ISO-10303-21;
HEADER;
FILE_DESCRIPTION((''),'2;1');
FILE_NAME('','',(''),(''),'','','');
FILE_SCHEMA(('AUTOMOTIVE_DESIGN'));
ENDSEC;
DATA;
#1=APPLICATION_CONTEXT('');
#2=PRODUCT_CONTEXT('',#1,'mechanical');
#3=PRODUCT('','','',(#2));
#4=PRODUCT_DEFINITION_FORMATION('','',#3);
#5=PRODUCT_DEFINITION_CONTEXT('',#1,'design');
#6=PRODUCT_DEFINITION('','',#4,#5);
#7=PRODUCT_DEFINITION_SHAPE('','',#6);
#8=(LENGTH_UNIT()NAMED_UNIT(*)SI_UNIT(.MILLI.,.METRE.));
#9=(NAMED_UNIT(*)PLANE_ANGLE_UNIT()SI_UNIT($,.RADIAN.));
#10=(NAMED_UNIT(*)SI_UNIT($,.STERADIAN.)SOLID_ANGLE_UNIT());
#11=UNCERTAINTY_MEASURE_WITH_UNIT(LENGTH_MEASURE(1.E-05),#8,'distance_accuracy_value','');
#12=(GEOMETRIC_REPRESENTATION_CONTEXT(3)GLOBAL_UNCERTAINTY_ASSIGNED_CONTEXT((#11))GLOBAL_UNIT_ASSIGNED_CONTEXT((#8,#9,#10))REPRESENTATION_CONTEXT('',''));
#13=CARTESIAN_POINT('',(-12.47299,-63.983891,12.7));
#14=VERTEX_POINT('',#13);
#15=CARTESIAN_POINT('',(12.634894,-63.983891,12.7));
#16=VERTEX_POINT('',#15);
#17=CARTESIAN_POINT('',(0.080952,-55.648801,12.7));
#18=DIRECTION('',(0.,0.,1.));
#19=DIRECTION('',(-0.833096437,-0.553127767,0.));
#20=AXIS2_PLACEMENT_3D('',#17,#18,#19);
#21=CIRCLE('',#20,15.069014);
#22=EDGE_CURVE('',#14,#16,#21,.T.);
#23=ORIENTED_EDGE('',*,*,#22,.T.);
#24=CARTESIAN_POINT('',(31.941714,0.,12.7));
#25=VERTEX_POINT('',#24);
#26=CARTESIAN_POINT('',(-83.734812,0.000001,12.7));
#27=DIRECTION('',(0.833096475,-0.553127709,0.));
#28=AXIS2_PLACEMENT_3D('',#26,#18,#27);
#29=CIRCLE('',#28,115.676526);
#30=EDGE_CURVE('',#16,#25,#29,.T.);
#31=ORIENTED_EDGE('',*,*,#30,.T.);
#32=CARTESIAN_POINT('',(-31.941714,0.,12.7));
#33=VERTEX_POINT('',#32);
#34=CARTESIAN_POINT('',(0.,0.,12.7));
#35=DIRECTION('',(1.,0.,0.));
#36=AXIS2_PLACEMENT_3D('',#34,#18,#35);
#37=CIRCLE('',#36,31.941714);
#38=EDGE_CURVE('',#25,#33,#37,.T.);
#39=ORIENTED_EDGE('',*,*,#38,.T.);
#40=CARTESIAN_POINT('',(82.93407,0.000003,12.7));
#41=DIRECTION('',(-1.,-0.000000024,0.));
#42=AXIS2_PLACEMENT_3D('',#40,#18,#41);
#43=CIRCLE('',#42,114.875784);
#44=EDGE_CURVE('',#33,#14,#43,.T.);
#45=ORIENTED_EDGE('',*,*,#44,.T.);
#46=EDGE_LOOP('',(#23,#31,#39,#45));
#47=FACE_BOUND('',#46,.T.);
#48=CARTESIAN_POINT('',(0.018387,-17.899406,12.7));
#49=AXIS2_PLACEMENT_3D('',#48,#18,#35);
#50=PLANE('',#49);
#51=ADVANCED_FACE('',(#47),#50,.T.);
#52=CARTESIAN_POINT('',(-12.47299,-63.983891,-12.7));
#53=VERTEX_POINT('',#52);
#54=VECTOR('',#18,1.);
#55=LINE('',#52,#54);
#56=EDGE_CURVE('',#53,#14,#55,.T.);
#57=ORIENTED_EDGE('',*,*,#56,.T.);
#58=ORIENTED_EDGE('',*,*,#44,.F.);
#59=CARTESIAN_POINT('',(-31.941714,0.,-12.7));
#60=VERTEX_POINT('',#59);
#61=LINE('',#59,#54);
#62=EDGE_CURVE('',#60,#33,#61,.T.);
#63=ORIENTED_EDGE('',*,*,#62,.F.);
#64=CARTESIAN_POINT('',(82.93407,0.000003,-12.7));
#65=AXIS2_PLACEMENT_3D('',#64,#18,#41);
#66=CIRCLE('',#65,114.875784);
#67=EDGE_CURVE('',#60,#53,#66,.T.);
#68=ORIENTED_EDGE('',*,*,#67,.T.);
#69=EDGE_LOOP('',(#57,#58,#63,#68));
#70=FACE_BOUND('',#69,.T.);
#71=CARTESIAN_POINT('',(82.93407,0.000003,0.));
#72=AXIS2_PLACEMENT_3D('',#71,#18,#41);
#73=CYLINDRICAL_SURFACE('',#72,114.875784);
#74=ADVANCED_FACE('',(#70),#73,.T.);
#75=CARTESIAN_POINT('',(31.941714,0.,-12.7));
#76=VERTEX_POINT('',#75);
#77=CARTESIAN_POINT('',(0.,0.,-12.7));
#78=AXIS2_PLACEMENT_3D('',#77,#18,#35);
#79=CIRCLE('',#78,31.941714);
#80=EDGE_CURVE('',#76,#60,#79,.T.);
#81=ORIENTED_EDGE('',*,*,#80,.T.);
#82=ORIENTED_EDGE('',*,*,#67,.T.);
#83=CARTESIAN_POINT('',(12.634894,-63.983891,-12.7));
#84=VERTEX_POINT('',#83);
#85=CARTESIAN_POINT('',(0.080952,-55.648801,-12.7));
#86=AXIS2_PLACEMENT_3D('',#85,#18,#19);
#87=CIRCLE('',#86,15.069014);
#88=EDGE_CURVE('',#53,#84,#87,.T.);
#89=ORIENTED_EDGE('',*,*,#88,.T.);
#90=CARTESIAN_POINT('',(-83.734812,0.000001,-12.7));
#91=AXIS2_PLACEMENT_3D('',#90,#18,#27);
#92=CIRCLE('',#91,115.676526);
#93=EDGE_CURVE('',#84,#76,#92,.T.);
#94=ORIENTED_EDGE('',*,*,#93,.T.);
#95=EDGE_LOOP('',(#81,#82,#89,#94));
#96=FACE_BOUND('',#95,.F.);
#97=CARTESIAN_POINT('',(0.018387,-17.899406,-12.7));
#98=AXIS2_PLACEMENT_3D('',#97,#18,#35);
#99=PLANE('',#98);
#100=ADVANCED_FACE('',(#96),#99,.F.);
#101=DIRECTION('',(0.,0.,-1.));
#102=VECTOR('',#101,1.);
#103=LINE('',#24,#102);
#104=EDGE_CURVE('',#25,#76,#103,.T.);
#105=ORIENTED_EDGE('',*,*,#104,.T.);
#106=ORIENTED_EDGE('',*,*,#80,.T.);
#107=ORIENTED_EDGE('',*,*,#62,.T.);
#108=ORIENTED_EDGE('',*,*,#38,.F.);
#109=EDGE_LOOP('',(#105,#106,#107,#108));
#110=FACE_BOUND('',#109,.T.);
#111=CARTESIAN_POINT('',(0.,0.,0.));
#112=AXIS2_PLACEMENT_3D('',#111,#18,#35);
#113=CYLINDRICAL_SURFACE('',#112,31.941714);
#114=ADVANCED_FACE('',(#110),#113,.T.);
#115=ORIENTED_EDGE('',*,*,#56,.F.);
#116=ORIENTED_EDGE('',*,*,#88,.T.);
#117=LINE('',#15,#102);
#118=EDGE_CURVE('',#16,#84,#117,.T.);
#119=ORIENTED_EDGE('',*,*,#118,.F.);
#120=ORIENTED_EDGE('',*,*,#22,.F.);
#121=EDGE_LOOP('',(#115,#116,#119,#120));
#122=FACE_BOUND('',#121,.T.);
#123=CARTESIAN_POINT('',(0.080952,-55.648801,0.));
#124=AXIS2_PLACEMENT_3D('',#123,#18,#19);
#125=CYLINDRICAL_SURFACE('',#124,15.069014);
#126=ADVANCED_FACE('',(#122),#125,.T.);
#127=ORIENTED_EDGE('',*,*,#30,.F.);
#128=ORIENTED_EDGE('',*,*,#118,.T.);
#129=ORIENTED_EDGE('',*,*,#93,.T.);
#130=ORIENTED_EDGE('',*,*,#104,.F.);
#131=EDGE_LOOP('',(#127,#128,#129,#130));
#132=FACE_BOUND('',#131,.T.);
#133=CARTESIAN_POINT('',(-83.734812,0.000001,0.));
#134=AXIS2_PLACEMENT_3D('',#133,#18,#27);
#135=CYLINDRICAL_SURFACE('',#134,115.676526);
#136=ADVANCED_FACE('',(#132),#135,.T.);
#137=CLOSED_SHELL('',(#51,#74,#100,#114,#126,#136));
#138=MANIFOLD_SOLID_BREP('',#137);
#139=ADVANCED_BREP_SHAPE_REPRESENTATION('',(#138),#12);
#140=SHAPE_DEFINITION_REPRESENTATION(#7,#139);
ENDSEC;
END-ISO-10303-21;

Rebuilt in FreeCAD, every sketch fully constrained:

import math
import FreeCAD as App
import Part
import Sketcher
Q = App.Units.Quantity

doc = App.newDocument("Part")
body = doc.addObject("PartDesign::Body", "Body")

# Sketch on XY plane
sketch1 = body.newObject("Sketcher::SketchObject", "Sketch")
sketch1.AttachmentSupport = (doc.getObject("XY_Plane"), [""])
sketch1.MapMode = "FlatFace"
sketch1.addGeometry([
    Part.ArcOfCircle(Part.Circle(App.Vector(0, 0, 0), App.Vector(0, 0, 1), 32), math.radians(0), math.radians(180)),
    Part.ArcOfCircle(Part.Circle(App.Vector(83, 0, 0), App.Vector(0, 0, 1), 115), math.radians(-180), math.radians(-146)),
    Part.ArcOfCircle(Part.Circle(App.Vector(0, -56, 0), App.Vector(0, 0, 1), 15), math.radians(-146), math.radians(-34)),
    Part.ArcOfCircle(Part.Circle(App.Vector(-84, 0, 0), App.Vector(0, 0, 1), 116), math.radians(-34), math.radians(0)),
], False)
sketch1.addConstraint([
    Sketcher.Constraint("Tangent", 0, 2, 1, 1),
    Sketcher.Constraint("Coincident", 1, 2, 2, 1),
    Sketcher.Constraint("Tangent", 2, 2, 3, 1),
    Sketcher.Constraint("Tangent", 3, 2, 0, 1),
    Sketcher.Constraint("Coincident", 0, 3, -1, 1),
    Sketcher.Constraint("PointOnObject", 3, 3, -1),
    Sketcher.Constraint("PointOnObject", 0, 2, -1),
    Sketcher.Constraint("Horizontal", 1, 2, 2, 2),
    Sketcher.Constraint("Radius", 0, Q("31.941714 mm")),
    Sketcher.Constraint("Radius", 1, Q("114.875784 mm")),
    Sketcher.Constraint("Radius", 2, Q("15.069014 mm")),
    Sketcher.Constraint("Radius", 3, Q("115.676526 mm")),
])
pad1 = body.newObject("PartDesign::Pad", "Pad")
pad1.Profile = sketch1
pad1.Length = Q("1 in")
pad1.Midplane = True

doc.recompute()
